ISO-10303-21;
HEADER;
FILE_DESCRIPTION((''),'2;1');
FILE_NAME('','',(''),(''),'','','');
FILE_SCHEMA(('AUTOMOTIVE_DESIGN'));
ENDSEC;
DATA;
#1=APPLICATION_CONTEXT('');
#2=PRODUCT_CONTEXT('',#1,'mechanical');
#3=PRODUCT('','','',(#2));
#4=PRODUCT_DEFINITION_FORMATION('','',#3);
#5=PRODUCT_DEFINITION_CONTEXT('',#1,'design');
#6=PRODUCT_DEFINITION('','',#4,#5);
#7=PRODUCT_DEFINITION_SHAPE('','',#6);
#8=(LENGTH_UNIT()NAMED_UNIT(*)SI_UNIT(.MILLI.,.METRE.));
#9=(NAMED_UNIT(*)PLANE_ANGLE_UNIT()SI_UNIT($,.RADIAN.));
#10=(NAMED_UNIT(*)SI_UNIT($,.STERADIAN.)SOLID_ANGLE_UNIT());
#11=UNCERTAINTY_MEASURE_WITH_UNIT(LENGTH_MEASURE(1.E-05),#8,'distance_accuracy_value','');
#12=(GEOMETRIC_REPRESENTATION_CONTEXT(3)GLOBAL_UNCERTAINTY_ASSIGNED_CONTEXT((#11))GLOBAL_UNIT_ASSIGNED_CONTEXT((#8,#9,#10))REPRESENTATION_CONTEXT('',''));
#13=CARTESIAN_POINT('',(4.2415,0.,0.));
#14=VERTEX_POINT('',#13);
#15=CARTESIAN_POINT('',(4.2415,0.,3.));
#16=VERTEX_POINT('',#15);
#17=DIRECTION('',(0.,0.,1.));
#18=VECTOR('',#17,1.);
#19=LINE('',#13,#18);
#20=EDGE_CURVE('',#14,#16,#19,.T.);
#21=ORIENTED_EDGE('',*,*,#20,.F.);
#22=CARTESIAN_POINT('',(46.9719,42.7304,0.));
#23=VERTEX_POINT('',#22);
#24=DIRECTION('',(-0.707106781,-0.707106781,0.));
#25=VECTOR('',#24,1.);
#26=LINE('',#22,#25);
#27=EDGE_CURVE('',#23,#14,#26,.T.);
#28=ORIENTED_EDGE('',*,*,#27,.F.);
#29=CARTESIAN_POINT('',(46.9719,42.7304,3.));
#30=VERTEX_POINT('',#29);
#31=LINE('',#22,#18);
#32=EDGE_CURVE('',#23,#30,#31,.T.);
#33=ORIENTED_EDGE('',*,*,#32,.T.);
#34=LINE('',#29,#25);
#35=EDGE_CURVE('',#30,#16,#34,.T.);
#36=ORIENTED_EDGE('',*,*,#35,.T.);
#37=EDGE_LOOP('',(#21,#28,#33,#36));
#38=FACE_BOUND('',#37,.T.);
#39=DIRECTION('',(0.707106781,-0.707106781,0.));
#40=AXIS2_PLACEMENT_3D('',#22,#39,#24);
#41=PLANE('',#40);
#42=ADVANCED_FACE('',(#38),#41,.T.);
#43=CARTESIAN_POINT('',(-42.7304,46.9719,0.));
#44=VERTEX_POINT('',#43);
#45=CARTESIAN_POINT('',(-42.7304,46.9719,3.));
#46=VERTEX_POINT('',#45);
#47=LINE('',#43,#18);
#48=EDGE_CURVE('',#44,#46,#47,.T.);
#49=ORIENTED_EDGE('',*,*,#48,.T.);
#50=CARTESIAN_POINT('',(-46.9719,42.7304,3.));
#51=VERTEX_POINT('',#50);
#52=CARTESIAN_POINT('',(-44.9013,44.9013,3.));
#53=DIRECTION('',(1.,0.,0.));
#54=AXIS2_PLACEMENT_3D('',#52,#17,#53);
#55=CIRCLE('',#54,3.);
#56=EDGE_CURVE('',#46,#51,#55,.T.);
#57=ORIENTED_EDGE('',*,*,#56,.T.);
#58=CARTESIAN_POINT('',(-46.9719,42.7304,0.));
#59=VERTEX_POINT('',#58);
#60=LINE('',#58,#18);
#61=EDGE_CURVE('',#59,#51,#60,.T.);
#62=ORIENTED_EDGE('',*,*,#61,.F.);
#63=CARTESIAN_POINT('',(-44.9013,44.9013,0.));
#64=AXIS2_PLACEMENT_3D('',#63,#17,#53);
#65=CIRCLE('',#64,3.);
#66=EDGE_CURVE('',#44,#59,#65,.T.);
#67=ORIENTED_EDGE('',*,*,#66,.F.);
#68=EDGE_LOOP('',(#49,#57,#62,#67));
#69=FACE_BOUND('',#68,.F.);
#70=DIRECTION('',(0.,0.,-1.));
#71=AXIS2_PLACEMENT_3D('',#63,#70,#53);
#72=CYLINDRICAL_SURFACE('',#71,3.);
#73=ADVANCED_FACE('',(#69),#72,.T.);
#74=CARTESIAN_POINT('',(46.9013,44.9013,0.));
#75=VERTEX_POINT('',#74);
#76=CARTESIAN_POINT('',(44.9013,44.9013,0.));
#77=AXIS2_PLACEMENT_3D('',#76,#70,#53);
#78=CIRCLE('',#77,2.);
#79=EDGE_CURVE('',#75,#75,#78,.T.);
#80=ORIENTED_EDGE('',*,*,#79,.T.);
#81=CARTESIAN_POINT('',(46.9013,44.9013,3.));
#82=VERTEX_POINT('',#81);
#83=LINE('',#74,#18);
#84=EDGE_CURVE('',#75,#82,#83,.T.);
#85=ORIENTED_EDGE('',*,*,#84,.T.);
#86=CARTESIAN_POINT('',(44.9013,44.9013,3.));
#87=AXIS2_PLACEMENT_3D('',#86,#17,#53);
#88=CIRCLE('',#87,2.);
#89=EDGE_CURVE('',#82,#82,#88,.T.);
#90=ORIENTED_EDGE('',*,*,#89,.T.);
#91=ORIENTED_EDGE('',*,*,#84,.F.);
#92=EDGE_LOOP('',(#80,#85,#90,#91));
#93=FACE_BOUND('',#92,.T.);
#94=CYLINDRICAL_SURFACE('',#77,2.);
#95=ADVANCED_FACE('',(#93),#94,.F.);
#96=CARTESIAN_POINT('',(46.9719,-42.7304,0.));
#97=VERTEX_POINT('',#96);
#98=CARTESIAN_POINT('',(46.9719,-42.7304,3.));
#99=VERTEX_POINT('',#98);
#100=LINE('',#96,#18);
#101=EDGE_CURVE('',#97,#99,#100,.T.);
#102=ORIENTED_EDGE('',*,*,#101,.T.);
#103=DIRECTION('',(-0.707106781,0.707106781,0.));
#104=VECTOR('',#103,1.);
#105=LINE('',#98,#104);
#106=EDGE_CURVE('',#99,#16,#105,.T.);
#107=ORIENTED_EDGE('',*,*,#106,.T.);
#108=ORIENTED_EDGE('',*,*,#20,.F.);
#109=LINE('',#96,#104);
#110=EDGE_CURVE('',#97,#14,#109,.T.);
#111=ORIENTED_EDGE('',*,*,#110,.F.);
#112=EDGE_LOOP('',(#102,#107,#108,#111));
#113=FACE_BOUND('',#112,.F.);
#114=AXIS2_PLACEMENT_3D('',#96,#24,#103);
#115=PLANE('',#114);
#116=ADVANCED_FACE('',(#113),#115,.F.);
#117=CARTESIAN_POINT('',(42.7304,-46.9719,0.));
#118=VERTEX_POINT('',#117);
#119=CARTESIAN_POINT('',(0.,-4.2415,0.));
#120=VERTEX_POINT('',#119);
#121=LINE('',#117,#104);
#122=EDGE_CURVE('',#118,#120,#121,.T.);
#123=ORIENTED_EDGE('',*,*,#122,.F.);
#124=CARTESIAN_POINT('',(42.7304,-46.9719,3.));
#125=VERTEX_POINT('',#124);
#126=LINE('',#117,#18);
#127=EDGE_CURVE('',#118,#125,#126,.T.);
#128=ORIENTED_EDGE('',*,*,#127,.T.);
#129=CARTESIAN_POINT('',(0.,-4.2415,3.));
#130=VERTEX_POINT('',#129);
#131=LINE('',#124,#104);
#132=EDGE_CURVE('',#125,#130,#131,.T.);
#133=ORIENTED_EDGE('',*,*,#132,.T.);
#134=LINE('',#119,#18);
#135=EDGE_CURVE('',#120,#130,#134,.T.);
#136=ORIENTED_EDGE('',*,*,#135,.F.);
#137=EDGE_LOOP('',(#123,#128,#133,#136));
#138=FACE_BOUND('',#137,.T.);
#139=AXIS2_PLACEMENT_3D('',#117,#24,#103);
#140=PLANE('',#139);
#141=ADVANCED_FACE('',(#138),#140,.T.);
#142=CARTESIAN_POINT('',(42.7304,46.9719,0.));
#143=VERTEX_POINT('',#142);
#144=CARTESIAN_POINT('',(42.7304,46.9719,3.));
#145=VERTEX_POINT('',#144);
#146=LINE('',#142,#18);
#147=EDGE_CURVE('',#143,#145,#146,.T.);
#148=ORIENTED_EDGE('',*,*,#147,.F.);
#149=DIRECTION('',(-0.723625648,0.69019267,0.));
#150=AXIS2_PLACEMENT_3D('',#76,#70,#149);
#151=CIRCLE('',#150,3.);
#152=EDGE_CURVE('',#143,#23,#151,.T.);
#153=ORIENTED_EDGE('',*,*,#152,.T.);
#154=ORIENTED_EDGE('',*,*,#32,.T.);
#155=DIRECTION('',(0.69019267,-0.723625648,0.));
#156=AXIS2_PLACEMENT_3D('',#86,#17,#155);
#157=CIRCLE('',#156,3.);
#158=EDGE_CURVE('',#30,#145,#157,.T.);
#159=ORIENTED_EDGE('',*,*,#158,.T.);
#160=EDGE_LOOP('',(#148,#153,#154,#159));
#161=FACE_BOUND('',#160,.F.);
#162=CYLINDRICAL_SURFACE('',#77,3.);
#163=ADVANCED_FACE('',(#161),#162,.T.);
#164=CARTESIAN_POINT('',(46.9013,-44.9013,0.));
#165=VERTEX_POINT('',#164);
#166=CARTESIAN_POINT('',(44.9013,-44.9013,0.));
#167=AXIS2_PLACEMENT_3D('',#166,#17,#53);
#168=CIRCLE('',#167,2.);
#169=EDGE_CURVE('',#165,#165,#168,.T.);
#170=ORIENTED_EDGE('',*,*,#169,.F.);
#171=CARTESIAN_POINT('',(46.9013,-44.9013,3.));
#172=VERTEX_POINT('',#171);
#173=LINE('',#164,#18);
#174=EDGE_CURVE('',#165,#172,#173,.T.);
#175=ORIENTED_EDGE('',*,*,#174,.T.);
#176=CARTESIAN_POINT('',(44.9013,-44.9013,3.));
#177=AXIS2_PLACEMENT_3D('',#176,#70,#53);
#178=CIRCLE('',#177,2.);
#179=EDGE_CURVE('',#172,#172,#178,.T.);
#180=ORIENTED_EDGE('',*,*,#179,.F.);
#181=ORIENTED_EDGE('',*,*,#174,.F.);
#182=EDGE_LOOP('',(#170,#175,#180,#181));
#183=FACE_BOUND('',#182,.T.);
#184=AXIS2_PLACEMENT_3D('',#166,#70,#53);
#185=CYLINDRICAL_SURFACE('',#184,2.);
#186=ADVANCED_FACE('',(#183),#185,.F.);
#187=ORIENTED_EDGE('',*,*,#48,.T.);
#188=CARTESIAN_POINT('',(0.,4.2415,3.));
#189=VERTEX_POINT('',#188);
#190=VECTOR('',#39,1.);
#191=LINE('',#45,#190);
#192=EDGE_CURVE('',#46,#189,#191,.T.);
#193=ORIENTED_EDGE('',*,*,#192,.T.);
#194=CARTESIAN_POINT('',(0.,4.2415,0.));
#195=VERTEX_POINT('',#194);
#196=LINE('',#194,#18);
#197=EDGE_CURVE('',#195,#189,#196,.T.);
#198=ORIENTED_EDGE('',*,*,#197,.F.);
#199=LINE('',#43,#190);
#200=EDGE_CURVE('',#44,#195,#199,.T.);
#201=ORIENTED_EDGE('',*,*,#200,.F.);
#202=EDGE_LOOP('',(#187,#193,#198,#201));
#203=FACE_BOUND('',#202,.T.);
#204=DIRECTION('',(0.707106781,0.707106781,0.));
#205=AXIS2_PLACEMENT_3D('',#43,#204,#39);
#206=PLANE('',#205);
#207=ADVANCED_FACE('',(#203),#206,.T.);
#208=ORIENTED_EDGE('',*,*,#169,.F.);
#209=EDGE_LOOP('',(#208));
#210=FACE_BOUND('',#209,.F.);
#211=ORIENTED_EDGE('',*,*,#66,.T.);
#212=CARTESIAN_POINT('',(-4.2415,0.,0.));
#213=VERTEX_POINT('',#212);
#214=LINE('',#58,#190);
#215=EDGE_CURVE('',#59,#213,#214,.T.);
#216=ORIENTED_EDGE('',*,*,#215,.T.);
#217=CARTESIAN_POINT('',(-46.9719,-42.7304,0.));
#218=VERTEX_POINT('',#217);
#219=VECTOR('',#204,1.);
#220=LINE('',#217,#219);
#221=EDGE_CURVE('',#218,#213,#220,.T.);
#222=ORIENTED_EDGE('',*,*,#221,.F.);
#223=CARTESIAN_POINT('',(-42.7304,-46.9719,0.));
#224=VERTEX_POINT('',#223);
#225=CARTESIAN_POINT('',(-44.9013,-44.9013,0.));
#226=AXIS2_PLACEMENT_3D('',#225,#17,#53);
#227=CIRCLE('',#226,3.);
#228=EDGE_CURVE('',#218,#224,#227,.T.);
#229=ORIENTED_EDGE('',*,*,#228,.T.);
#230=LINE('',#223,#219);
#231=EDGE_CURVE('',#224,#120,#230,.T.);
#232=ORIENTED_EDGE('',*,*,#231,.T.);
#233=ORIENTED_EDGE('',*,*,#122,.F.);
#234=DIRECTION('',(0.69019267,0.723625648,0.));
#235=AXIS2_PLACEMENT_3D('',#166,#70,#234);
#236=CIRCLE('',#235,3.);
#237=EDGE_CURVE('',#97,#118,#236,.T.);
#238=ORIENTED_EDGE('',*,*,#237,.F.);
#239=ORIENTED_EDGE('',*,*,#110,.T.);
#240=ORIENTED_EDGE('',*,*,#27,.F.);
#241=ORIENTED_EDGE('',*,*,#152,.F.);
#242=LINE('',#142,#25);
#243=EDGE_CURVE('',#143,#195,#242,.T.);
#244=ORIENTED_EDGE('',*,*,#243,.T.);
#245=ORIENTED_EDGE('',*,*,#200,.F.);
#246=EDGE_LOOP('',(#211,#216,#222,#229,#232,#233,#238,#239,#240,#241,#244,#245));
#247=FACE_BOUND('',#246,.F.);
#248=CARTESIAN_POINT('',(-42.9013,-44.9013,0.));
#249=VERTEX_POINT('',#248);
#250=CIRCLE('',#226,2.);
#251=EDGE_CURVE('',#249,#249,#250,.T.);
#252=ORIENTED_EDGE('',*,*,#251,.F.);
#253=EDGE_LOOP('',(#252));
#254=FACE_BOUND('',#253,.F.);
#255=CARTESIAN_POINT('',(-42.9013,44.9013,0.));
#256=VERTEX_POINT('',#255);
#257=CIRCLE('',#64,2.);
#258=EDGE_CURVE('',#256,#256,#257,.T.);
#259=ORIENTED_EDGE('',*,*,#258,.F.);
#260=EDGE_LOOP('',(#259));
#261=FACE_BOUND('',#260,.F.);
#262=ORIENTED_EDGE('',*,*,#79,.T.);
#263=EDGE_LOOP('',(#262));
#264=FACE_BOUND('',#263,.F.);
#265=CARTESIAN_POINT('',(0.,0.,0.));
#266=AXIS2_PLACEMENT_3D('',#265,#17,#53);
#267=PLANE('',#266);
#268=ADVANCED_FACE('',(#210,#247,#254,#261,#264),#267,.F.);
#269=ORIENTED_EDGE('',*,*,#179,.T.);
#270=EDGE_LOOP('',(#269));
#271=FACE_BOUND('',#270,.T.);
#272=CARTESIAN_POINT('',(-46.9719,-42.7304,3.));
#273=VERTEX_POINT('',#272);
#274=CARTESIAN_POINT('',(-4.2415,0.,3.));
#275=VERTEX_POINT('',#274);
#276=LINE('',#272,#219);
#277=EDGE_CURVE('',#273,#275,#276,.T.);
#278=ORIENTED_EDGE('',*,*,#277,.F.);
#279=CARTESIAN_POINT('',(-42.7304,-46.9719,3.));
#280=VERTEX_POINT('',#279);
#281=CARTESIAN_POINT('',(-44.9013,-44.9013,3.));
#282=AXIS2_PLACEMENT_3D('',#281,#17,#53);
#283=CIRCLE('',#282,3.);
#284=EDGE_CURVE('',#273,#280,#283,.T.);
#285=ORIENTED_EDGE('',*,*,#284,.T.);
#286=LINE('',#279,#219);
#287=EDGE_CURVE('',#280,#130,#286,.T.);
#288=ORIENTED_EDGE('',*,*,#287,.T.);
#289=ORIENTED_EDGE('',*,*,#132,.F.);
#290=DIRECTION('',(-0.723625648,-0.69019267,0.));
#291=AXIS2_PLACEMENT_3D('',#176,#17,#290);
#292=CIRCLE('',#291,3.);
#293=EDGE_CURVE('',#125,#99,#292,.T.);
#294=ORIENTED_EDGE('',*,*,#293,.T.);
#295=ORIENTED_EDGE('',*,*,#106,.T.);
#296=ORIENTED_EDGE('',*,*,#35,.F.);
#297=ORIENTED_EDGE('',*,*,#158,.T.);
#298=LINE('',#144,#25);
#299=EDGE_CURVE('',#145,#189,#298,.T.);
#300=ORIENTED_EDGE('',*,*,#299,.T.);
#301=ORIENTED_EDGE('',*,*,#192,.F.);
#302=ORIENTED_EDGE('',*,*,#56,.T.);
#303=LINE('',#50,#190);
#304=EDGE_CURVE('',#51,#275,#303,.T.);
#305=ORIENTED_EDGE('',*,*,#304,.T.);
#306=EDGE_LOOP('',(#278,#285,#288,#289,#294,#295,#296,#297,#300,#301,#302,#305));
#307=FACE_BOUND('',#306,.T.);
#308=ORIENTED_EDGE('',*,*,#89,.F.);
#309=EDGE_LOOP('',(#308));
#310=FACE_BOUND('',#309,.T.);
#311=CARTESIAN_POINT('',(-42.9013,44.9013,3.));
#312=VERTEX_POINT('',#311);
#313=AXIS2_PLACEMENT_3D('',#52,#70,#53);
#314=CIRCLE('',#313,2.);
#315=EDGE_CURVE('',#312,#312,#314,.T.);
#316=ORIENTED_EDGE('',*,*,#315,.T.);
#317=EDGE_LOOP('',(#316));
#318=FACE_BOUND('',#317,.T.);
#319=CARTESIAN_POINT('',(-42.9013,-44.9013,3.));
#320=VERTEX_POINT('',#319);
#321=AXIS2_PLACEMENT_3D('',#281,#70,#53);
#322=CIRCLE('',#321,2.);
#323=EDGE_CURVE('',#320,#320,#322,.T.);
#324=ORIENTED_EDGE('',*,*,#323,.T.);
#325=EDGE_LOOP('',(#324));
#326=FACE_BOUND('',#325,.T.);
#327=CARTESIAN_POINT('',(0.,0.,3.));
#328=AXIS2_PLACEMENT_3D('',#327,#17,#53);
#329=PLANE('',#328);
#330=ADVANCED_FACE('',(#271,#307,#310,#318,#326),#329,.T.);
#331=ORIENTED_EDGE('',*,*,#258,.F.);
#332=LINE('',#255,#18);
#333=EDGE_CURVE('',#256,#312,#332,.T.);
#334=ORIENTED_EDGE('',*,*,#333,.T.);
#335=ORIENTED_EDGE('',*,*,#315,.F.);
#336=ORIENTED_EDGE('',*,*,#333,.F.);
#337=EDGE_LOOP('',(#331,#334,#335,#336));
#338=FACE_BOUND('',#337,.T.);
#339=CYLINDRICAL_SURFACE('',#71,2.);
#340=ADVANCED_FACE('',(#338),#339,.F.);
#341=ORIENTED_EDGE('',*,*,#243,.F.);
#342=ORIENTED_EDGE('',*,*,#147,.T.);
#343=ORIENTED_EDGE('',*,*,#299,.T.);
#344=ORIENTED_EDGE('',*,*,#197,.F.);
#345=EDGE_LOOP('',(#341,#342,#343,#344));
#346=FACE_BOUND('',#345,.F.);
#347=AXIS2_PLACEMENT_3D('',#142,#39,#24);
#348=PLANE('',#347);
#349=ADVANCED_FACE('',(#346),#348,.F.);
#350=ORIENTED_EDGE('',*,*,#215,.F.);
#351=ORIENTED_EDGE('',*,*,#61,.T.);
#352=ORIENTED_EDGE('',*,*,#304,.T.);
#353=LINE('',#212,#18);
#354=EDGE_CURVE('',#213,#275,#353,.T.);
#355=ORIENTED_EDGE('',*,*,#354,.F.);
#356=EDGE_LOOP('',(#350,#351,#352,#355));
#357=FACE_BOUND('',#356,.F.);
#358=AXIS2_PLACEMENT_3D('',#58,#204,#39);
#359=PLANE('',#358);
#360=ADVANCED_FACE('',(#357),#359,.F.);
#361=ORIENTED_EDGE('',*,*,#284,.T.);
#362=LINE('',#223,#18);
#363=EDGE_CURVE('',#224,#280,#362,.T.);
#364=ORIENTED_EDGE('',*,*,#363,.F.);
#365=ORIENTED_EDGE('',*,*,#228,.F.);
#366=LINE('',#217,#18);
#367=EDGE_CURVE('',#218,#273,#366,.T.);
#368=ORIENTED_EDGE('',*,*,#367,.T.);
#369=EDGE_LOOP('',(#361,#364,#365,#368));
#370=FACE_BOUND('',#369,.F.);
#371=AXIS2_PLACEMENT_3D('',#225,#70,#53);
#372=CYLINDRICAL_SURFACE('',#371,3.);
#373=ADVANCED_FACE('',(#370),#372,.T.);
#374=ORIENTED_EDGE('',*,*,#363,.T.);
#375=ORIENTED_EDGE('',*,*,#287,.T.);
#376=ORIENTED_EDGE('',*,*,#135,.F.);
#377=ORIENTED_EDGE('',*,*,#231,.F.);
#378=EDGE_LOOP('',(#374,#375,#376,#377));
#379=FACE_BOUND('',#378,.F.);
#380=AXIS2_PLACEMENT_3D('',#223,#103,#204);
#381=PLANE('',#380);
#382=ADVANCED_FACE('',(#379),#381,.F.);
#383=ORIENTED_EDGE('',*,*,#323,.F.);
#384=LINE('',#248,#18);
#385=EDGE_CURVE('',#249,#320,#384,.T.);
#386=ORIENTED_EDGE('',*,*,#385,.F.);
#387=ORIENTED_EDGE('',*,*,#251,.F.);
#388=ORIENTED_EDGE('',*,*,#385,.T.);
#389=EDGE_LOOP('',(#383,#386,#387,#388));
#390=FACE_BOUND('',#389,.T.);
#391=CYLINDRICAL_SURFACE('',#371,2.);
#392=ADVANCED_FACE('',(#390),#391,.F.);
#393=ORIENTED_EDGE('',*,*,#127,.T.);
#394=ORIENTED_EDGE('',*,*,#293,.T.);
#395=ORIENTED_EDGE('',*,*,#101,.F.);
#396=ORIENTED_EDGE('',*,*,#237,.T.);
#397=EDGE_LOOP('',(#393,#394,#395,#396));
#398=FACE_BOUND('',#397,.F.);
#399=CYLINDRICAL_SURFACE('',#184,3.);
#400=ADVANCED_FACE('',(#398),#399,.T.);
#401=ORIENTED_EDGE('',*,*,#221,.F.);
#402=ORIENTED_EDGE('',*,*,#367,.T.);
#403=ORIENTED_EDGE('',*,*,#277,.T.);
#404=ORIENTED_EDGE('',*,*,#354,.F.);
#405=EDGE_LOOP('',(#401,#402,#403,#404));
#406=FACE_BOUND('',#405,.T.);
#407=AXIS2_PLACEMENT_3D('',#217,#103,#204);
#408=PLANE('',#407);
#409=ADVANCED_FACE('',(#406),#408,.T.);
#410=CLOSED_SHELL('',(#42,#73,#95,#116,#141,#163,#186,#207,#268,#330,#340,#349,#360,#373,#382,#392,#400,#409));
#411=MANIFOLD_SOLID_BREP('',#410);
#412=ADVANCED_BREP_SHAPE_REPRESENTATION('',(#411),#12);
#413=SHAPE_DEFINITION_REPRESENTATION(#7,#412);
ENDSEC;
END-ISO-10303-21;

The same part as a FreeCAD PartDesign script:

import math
import FreeCAD as App
import Part
import Sketcher

doc = App.newDocument("Part")
body = doc.addObject("PartDesign::Body", "Body")

sketch1 = body.newObject("Sketcher::SketchObject", "Sketch")
sketch1.AttachmentSupport = (doc.getObject("XY_Plane"), [""])
sketch1.MapMode = "FlatFace"
sketch1.addGeometry([
    Part.LineSegment(App.Vector(4.2415, 0, 0), App.Vector(46.9719, 42.7304, 0)),
    Part.ArcOfCircle(Part.Circle(App.Vector(44.9013, 44.9013, 0), App.Vector(0, 0, 1), 3), math.radians(-46.354638), math.radians(136.354638)),
    Part.LineSegment(App.Vector(42.7304, 46.9719, 0), App.Vector(0, 4.2415, 0)),
    Part.LineSegment(App.Vector(0, 4.2415, 0), App.Vector(-42.7304, 46.9719, 0)),
    Part.ArcOfCircle(Part.Circle(App.Vector(-44.9013, 44.9013, 0), App.Vector(0, 0, 1), 3), math.radians(43.645362), math.radians(226.354638)),
    Part.LineSegment(App.Vector(-46.9719, 42.7304, 0), App.Vector(-4.2415, 0, 0)),
    Part.LineSegment(App.Vector(-4.2415, 0, 0), App.Vector(-46.9719, -42.7304, 0)),
    Part.ArcOfCircle(Part.Circle(App.Vector(-44.9013, -44.9013, 0), App.Vector(0, 0, 1), 3), math.radians(133.645362), math.radians(316.354638)),
    Part.LineSegment(App.Vector(-42.7304, -46.9719, 0), App.Vector(0, -4.2415, 0)),
    Part.LineSegment(App.Vector(0, -4.2415, 0), App.Vector(42.7304, -46.9719, 0)),
    Part.ArcOfCircle(Part.Circle(App.Vector(44.9013, -44.9013, 0), App.Vector(0, 0, 1), 3), math.radians(-136.354638), math.radians(46.354638)),
    Part.LineSegment(App.Vector(46.9719, -42.7304, 0), App.Vector(4.2415, 0, 0)),
    Part.Circle(App.Vector(44.9013, 44.9013, 0), App.Vector(0, 0, 1), 2),
    Part.Circle(App.Vector(44.9013, -44.9013, 0), App.Vector(0, 0, 1), 2),
    Part.Circle(App.Vector(-44.9013, -44.9013, 0), App.Vector(0, 0, 1), 2),
    Part.Circle(App.Vector(-44.9013, 44.9013, 0), App.Vector(0, 0, 1), 2),
], False)
sketch1.addConstraint([
    Sketcher.Constraint("Coincident", 0, 2, 1, 1),
    Sketcher.Constraint("Coincident", 1, 2, 2, 1),
    Sketcher.Constraint("Coincident", 2, 2, 3, 1),
    Sketcher.Constraint("Coincident", 3, 2, 4, 1),
    Sketcher.Constraint("Coincident", 4, 2, 5, 1),
    Sketcher.Constraint("Coincident", 5, 2, 6, 1),
    Sketcher.Constraint("Coincident", 6, 2, 7, 1),
    Sketcher.Constraint("Coincident", 7, 2, 8, 1),
    Sketcher.Constraint("Coincident", 8, 2, 9, 1),
    Sketcher.Constraint("Coincident", 9, 2, 10, 1),
    Sketcher.Constraint("Coincident", 10, 2, 11, 1),
    Sketcher.Constraint("Coincident", 11, 2, 0, 1),
    Sketcher.Constraint("Coincident", 12, 3, 1, 3),
    Sketcher.Constraint("Coincident", 13, 3, 10, 3),
    Sketcher.Constraint("Coincident", 14, 3, 7, 3),
    Sketcher.Constraint("Coincident", 15, 3, 4, 3),
    Sketcher.Constraint("PointOnObject", 2, 2, -2),
    Sketcher.Constraint("PointOnObject", 5, 2, -1),
    Sketcher.Constraint("PointOnObject", 8, 2, -2),
    Sketcher.Constraint("PointOnObject", 11, 2, -1),
    Sketcher.Constraint("Diameter", 12, 4.0),
    Sketcher.Constraint("Diameter", 13, 4.0),
    Sketcher.Constraint("Diameter", 14, 4.0),
    Sketcher.Constraint("Diameter", 15, 4.0),
    Sketcher.Constraint("Radius", 1, 3.0),
    Sketcher.Constraint("Radius", 4, 3.0),
    Sketcher.Constraint("Radius", 7, 3.0),
    Sketcher.Constraint("Radius", 10, 3.0),
    Sketcher.Constraint("Distance", 0, 60.43),
    Sketcher.Constraint("Distance", 2, 60.43),
    Sketcher.Constraint("Distance", 3, 60.43),
    Sketcher.Constraint("Distance", 5, 60.43),
    Sketcher.Constraint("Distance", 6, 60.43),
    Sketcher.Constraint("Distance", 8, 60.43),
    Sketcher.Constraint("Distance", 9, 60.43),
    Sketcher.Constraint("Distance", 11, 60.43),
    Sketcher.Constraint("DistanceX", -1, 1, 0, 2, 46.972),
    Sketcher.Constraint("DistanceY", -1, 1, 3, 2, 46.972),
    Sketcher.Constraint("DistanceX", 6, 2, -1, 1, 46.972),
    Sketcher.Constraint("DistanceY", 9, 2, -1, 1, 46.972),
    Sketcher.Constraint("DistanceY", 0, 2, 1, 3, 2.171),
    Sketcher.Constraint("DistanceY", 0, 2, 4, 3, 2.171),
    Sketcher.Constraint("DistanceX", 4, 3, 3, 2, 2.171),
    Sketcher.Constraint("DistanceY", 2, 2, 4, 2, 38.489),
    Sketcher.Constraint("DistanceY", 7, 3, 6, 2, 2.171),
    Sketcher.Constraint("DistanceY", 6, 2, 2, 2, 46.972),
    Sketcher.Constraint("DistanceX", 7, 2, 5, 2, 38.489),
    Sketcher.Constraint("DistanceX", 9, 2, 10, 3, 2.171),
])
pad1 = body.newObject("PartDesign::Pad", "Pad")
pad1.Profile = sketch1
pad1.Length = 3

doc.recompute()
